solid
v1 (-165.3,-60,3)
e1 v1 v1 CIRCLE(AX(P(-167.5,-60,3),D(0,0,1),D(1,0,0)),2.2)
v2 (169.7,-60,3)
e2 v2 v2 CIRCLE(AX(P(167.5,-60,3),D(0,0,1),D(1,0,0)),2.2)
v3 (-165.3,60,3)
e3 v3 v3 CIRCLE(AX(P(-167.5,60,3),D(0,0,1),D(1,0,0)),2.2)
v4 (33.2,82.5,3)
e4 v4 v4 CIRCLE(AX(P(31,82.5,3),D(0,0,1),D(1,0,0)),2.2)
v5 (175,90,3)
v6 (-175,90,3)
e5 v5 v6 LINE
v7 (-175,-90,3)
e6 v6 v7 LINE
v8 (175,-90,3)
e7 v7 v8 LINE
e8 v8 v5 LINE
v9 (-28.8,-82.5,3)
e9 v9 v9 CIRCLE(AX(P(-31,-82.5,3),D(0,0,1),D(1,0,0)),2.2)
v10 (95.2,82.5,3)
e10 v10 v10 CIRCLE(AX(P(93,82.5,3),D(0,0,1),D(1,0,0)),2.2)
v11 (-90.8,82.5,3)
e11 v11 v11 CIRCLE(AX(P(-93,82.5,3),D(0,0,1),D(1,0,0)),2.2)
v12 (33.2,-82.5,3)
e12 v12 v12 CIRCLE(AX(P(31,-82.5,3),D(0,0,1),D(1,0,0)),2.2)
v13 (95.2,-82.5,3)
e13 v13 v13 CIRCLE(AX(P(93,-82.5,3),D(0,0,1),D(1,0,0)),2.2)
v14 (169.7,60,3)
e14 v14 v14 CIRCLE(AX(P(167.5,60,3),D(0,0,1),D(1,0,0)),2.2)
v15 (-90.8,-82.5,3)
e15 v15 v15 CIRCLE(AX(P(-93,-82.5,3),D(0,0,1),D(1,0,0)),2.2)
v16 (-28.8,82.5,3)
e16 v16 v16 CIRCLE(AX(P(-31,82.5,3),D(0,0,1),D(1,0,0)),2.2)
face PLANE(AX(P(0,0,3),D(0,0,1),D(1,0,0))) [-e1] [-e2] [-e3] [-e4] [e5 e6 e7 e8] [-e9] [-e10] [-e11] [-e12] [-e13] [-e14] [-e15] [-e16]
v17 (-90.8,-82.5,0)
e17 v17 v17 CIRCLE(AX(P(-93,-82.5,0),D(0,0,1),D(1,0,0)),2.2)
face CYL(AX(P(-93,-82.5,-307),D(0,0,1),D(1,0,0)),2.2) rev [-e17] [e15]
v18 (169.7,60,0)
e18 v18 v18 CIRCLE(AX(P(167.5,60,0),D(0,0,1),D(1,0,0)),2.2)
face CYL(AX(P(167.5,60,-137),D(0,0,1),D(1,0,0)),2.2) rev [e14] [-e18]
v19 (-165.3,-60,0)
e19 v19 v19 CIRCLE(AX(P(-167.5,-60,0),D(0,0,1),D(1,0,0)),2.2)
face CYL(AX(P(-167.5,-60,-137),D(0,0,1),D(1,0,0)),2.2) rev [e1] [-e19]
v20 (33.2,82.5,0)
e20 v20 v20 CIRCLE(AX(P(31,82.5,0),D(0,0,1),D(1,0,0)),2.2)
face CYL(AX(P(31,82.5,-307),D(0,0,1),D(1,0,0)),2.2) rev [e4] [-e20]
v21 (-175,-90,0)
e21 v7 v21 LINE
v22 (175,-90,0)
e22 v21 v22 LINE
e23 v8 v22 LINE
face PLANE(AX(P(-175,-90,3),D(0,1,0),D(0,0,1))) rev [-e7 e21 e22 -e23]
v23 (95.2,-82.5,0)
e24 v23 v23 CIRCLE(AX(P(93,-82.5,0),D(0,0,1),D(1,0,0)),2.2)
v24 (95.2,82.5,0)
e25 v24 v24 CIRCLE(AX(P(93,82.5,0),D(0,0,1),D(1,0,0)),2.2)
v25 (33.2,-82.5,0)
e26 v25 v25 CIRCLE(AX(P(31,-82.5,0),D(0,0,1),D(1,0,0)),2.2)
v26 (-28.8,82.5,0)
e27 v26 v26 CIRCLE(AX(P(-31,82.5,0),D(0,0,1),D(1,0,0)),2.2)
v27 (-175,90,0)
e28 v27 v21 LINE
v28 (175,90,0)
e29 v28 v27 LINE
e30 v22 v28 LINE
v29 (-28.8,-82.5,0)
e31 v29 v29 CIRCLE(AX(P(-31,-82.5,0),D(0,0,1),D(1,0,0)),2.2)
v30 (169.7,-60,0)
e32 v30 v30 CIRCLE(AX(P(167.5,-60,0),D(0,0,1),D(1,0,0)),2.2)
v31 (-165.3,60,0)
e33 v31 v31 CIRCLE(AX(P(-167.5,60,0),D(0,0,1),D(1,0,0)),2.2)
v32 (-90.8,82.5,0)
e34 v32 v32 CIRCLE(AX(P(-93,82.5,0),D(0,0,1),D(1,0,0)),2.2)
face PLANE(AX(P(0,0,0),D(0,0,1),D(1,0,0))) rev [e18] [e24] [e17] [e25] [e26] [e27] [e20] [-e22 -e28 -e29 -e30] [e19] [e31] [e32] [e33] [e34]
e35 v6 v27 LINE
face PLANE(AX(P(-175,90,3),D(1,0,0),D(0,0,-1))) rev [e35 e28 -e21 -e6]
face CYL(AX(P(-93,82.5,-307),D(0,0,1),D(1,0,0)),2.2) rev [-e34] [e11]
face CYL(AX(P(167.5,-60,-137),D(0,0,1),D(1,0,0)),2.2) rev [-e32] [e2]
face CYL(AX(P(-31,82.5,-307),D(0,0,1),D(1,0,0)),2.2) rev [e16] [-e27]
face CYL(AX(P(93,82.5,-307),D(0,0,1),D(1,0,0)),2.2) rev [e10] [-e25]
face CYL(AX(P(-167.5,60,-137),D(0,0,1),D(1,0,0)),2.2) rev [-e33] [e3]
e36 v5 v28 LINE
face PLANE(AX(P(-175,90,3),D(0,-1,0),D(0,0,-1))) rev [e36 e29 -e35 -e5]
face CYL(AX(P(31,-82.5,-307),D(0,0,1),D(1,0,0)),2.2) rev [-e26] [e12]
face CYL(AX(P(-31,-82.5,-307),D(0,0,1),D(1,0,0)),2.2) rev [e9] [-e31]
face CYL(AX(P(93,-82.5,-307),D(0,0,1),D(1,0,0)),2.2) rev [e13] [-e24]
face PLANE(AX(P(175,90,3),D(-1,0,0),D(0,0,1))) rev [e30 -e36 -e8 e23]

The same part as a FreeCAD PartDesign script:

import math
import FreeCAD as App
import Part
import Sketcher

doc = App.newDocument("Part")
params = doc.addObject("Spreadsheet::Sheet", "Params")
for row, (alias, value) in enumerate([
    ("sketch1_width", "350 mm"),
    ("sketch1_height", "180 mm"),
    ("pad1_length", "3 mm"),
    ("sketch2_radius", "2.2 mm"),
    ("pocket1_length", "140 mm"),
    ("sketch3_diameter", "4.4 mm"),
    ("pocket2_length", "310 mm"),
    ("sketch4_diameter", "4.4 mm"),
    ("pocket3_length", "310 mm"),
], start=1):
    params.set(f"A{row}", alias)
    params.set(f"B{row}", "=" + value)
    params.setAlias(f"B{row}", alias)

body = doc.addObject("PartDesign::Body", "Body")

sketch1 = body.newObject("Sketcher::SketchObject", "Sketch")
sketch1.AttachmentSupport = (doc.getObject("XY_Plane"), [""])
sketch1.MapMode = "FlatFace"
sketch1.addGeometry([
    Part.LineSegment(App.Vector(-175, 90, 0), App.Vector(-175, -90, 0)),
    Part.LineSegment(App.Vector(-175, -90, 0), App.Vector(175, -90, 0)),
    Part.LineSegment(App.Vector(175, -90, 0), App.Vector(175, 90, 0)),
    Part.LineSegment(App.Vector(175, 90, 0), App.Vector(-175, 90, 0)),
], False)
sketch1.addConstraint([
    Sketcher.Constraint("Coincident", 0, 2, 1, 1),
    Sketcher.Constraint("Coincident", 1, 2, 2, 1),
    Sketcher.Constraint("Coincident", 2, 2, 3, 1),
    Sketcher.Constraint("Coincident", 3, 2, 0, 1),
    Sketcher.Constraint("Vertical", 0),
    Sketcher.Constraint("Horizontal", 1),
    Sketcher.Constraint("Vertical", 2),
    Sketcher.Constraint("Horizontal", 3),
    Sketcher.Constraint("Symmetric", 0, 2, 2, 2, -1, 1),
    Sketcher.Constraint("DistanceX", 1, 1, 1, 2, 350.0),
    Sketcher.Constraint("DistanceY", 0, 2, 0, 1, 180.0),
])
sketch1.setExpression("Constraints[9]", "Params.sketch1_width")
sketch1.setExpression("Constraints[10]", "Params.sketch1_height")
pad1 = body.newObject("PartDesign::Pad", "Pad")
pad1.Profile = sketch1
pad1.setExpression("Length", "Params.pad1_length")

sketch2 = body.newObject("Sketcher::SketchObject", "Sketch001")
sketch2.AttachmentSupport = (doc.getObject("XY_Plane"), [""])
sketch2.MapMode = "FlatFace"
sketch2.AttachmentOffset = App.Placement(App.Vector(0, 0, 3), App.Rotation())
sketch2.addGeometry([
    Part.ArcOfCircle(Part.Circle(App.Vector(167.5, 60, 0), App.Vector(0, 0, 1), 2.2), math.radians(0), math.radians(90)),
    Part.ArcOfCircle(Part.Circle(App.Vector(167.5, 60, 0), App.Vector(0, 0, 1), 2.2), math.radians(90), math.radians(360)),
    Part.ArcOfCircle(Part.Circle(App.Vector(167.5, -60, 0), App.Vector(0, 0, 1), 2.2), math.radians(0), math.radians(270)),
    Part.ArcOfCircle(Part.Circle(App.Vector(167.5, -60, 0), App.Vector(0, 0, 1), 2.2), math.radians(-90), math.radians(0)),
    Part.ArcOfCircle(Part.Circle(App.Vector(-167.5, 60, 0), App.Vector(0, 0, 1), 2.2), math.radians(0), math.radians(90)),
    Part.ArcOfCircle(Part.Circle(App.Vector(-167.5, 60, 0), App.Vector(0, 0, 1), 2.2), math.radians(90), math.radians(180)),
    Part.ArcOfCircle(Part.Circle(App.Vector(-167.5, 60, 0), App.Vector(0, 0, 1), 2.2), math.radians(180), math.radians(360)),
    Part.ArcOfCircle(Part.Circle(App.Vector(-167.5, -60, 0), App.Vector(0, 0, 1), 2.2), math.radians(180), math.radians(270)),
    Part.ArcOfCircle(Part.Circle(App.Vector(-167.5, -60, 0), App.Vector(0, 0, 1), 2.2), math.radians(-90), math.radians(0)),
    Part.ArcOfCircle(Part.Circle(App.Vector(-167.5, -60, 0), App.Vector(0, 0, 1), 2.2), math.radians(0), math.radians(180)),
], False)
sketch2.addConstraint([
    Sketcher.Constraint("Tangent", 0, 1, 1, 2),
    Sketcher.Constraint("Coincident", 1, 1, 0, 2),
    Sketcher.Constraint("Tangent", 2, 1, 3, 2),
    Sketcher.Constraint("Coincident", 3, 1, 2, 2),
    Sketcher.Constraint("Tangent", 4, 2, 5, 1),
    Sketcher.Constraint("Tangent", 5, 2, 6, 1),
    Sketcher.Constraint("Tangent", 6, 2, 4, 1),
    Sketcher.Constraint("Tangent", 7, 2, 8, 1),
    Sketcher.Constraint("Tangent", 8, 2, 9, 1),
    Sketcher.Constraint("Tangent", 9, 2, 7, 1),
    Sketcher.Constraint("Equal", 1, 2),
    Sketcher.Constraint("Equal", 3, 4),
    Sketcher.Constraint("Equal", 6, 7),
    Sketcher.Constraint("Symmetric", 2, 3, 4, 3, -1, 1),
    Sketcher.Constraint("Symmetric", 0, 3, 7, 3, -1, 1),
    Sketcher.Constraint("Symmetric", 0, 3, 4, 3, -2),
    Sketcher.Constraint("Horizontal", 6, 3, 0, 1),
    Sketcher.Constraint("Horizontal", 9, 3, 2, 1),
    Sketcher.Constraint("Horizontal", 0, 1, 5, 2),
    Sketcher.Constraint("Horizontal", 5, 2, 6, 2),
    Sketcher.Constraint("Horizontal", 2, 1, 8, 2),
    Sketcher.Constraint("Horizontal", 8, 2, 9, 2),
    Sketcher.Constraint("Vertical", 3, 3, 1, 1),
    Sketcher.Constraint("Vertical", 1, 1, 3, 1),
    Sketcher.Constraint("Vertical", 9, 3, 4, 2),
    Sketcher.Constraint("Vertical", 4, 2, 7, 2),
    Sketcher.Constraint("Radius", 0, 2.2),
    Sketcher.Constraint("DistanceY", -1, 1, 0, 3, 60.0),
    Sketcher.Constraint("DistanceX", 4, 3, 1, 3, 335.0),
])
sketch2.setExpression("Constraints[26]", "Params.sketch2_radius")
pocket1 = body.newObject("PartDesign::Pocket", "Pocket")
pocket1.Profile = sketch2
pocket1.setExpression("Length", "Params.pocket1_length")

sketch3 = body.newObject("Sketcher::SketchObject", "Sketch002")
sketch3.AttachmentSupport = (doc.getObject("XY_Plane"), [""])
sketch3.MapMode = "FlatFace"
sketch3.AttachmentOffset = App.Placement(App.Vector(0, 0, 3), App.Rotation())
sketch3.addGeometry([
    Part.Circle(App.Vector(93, 82.5, 0), App.Vector(0, 0, 1), 2.2),
    Part.Circle(App.Vector(31, 82.5, 0), App.Vector(0, 0, 1), 2.2),
    Part.Circle(App.Vector(-31, 82.5, 0), App.Vector(0, 0, 1), 2.2),
    Part.Circle(App.Vector(-93, 82.5, 0), App.Vector(0, 0, 1), 2.2),
], False)
sketch3.addConstraint([
    Sketcher.Constraint("Equal", 0, 1),
    Sketcher.Constraint("Equal", 1, 2),
    Sketcher.Constraint("Equal", 2, 3),
    Sketcher.Constraint("Symmetric", 1, 3, 2, 3, -2),
    Sketcher.Constraint("Symmetric", 0, 3, 3, 3, -2),
    Sketcher.Constraint("Horizontal", 0, 3, 1, 3),
    Sketcher.Constraint("Diameter", 0, 4.4),
    Sketcher.Constraint("DistanceX", -1, 1, 0, 3, 93.0),
    Sketcher.Constraint("DistanceX", -1, 1, 1, 3, 31.0),
    Sketcher.Constraint("DistanceY", -1, 1, 0, 3, 82.5),
])
sketch3.setExpression("Constraints[6]", "Params.sketch3_diameter")
pocket2 = body.newObject("PartDesign::Pocket", "Pocket001")
pocket2.Profile = sketch3
pocket2.setExpression("Length", "Params.pocket2_length")

sketch4 = body.newObject("Sketcher::SketchObject", "Sketch003")
sketch4.AttachmentSupport = (doc.getObject("XY_Plane"), [""])
sketch4.MapMode = "FlatFace"
sketch4.AttachmentOffset = App.Placement(App.Vector(0, 0, 3), App.Rotation())
sketch4.addGeometry([
    Part.Circle(App.Vector(93, -82.5, 0), App.Vector(0, 0, 1), 2.2),
    Part.Circle(App.Vector(31, -82.5, 0), App.Vector(0, 0, 1), 2.2),
    Part.Circle(App.Vector(-31, -82.5, 0), App.Vector(0, 0, 1), 2.2),
    Part.Circle(App.Vector(-93, -82.5, 0), App.Vector(0, 0, 1), 2.2),
], False)
sketch4.addConstraint([
    Sketcher.Constraint("Equal", 0, 1),
    Sketcher.Constraint("Equal", 1, 2),
    Sketcher.Constraint("Equal", 2, 3),
    Sketcher.Constraint("Symmetric", 1, 3, 2, 3, -2),
    Sketcher.Constraint("Symmetric", 0, 3, 3, 3, -2),
    Sketcher.Constraint("Horizontal", 0, 3, 1, 3),
    Sketcher.Constraint("Diameter", 0, 4.4),
    Sketcher.Constraint("DistanceX", -1, 1, 0, 3, 93.0),
    Sketcher.Constraint("DistanceX", -1, 1, 1, 3, 31.0),
    Sketcher.Constraint("DistanceY", 0, 3, -1, 1, 82.5),
])
sketch4.setExpression("Constraints[6]", "Params.sketch4_diameter")
pocket3 = body.newObject("PartDesign::Pocket", "Pocket002")
pocket3.Profile = sketch4
pocket3.setExpression("Length", "Params.pocket3_length")

doc.recompute()
